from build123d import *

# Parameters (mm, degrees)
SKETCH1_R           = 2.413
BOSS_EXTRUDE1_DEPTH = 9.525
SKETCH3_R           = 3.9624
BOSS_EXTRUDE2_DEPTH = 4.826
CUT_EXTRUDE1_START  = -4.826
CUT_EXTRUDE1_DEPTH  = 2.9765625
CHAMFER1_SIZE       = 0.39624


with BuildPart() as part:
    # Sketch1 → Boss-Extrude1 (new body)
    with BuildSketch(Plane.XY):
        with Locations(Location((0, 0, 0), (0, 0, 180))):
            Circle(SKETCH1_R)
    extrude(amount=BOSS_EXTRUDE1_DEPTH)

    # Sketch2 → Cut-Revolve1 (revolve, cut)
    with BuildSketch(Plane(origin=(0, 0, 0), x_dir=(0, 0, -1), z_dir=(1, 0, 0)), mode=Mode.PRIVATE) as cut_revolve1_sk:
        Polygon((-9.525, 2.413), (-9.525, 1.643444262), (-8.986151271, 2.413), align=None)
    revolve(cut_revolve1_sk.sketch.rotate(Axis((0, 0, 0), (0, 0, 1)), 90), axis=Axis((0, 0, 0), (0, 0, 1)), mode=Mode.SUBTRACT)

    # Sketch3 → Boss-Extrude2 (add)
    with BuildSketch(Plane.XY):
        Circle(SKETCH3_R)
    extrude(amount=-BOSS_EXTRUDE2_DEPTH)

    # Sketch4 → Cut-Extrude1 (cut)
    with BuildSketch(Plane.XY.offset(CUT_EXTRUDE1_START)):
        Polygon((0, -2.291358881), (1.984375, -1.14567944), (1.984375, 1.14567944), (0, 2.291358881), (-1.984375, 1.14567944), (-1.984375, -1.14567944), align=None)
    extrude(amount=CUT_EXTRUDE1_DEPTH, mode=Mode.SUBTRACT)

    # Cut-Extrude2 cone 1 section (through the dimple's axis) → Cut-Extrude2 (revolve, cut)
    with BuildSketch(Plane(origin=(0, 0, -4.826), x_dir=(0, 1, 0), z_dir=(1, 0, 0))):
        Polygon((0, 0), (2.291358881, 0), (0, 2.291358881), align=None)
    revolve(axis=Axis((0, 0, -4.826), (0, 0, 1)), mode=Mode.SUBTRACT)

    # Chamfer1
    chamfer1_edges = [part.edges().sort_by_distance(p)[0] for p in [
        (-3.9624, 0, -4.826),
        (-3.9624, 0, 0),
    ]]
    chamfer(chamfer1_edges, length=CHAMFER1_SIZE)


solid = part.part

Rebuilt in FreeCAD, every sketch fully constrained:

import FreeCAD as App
import Part
import Sketcher

V = App.Vector
Q = App.Units.Quantity


def edges_at(feature, points):
    """Names of the edges that pass closest to the given points."""
    edges = feature.Shape.Edges
    near = lambda p: min(range(len(edges)), key=lambda i: edges[i].distToShape(Part.Vertex(*p))[0])
    return sorted({f"Edge{near(p) + 1}" for p in points})

doc = App.newDocument("Part")
body = doc.addObject("PartDesign::Body", "Body")

sketch1 = body.newObject("Sketcher::SketchObject", "Sketch")
sketch1.AttachmentSupport = (doc.getObject("XY_Plane"), [""])
sketch1.MapMode = "FlatFace"
sketch1.addGeometry(Part.Circle(V(0, 0, 0), V(0, 0, 1), 2.4), False)
sketch1.addConstraint([
    Sketcher.Constraint("Coincident", 0, 3, -1, 1),
    Sketcher.Constraint("Diameter", 0, Q("0.19 in")),
])
pad1 = body.newObject("PartDesign::Pad", "Pad")
pad1.Profile = sketch1
pad1.Length = Q("0.375 in")

sketch2 = body.newObject("Sketcher::SketchObject", "Sketch001")
sketch2.AttachmentSupport = (doc.getObject("YZ_Plane"), [""])
sketch2.MapMode = "FlatFace"
sketch2.addGeometry([
    Part.LineSegment(V(2.4, 9.5, 0), V(1.6, 9.5, 0)),
    Part.LineSegment(V(1.6, 9.5, 0), V(2.4, 9, 0)),
    Part.LineSegment(V(2.4, 9, 0), V(2.4, 9.5, 0)),
], False)
sketch2.addConstraint([
    Sketcher.Constraint("Coincident", 0, 2, 1, 1),
    Sketcher.Constraint("Coincident", 1, 2, 2, 1),
    Sketcher.Constraint("Coincident", 2, 2, 0, 1),
    Sketcher.Constraint("Horizontal", 0),
    Sketcher.Constraint("Vertical", 2),
    Sketcher.Constraint("Angle", 1, Q("-35 deg")),
    Sketcher.Constraint("DistanceY", -1, 1, 0, 2, Q("0.375 in")),
    Sketcher.Constraint("DistanceX", -1, 1, 1, 2, Q("0.095 in")),
    Sketcher.Constraint("DistanceY", 2, 1, 2, 2, Q("0.538849 mm")),
])
groove = body.newObject("PartDesign::Groove", "Groove")
groove.Profile = sketch2
groove.ReferenceAxis = (sketch2, ["V_Axis"])
groove.Angle = 360

sketch3 = body.newObject("Sketcher::SketchObject", "Sketch002")
sketch3.AttachmentSupport = (doc.getObject("XY_Plane"), [""])
sketch3.MapMode = "FlatFace"
sketch3.addGeometry(Part.Circle(V(0, 0, 0), V(0, 0, 1), 4), False)
sketch3.addConstraint([
    Sketcher.Constraint("Coincident", 0, 3, -1, 1),
    Sketcher.Constraint("Diameter", 0, Q("0.312 in")),
])
pad2 = body.newObject("PartDesign::Pad", "Pad001")
pad2.Profile = sketch3
pad2.Length = Q("0.19 in")
pad2.Reversed = True

sketch4 = body.newObject("Sketcher::SketchObject", "Sketch003")
sketch4.AttachmentSupport = (doc.getObject("XY_Plane"), [""])
sketch4.MapMode = "FlatFace"
sketch4.AttachmentOffset = App.Placement(V(0, 0, -0.19 * 25.4), App.Rotation())
sketch4.addGeometry([
    Part.LineSegment(V(0, -2.3, 0), V(2, -1.1, 0)),
    Part.LineSegment(V(2, -1.1, 0), V(2, 1.1, 0)),
    Part.LineSegment(V(2, 1.1, 0), V(0, 2.3, 0)),
    Part.LineSegment(V(0, 2.3, 0), V(-2, 1.1, 0)),
    Part.LineSegment(V(-2, 1.1, 0), V(-2, -1.1, 0)),
    Part.LineSegment(V(-2, -1.1, 0), V(0, -2.3, 0)),
], False)
sketch4.addConstraint([
    Sketcher.Constraint("Coincident", 0, 2, 1, 1),
    Sketcher.Constraint("Coincident", 1, 2, 2, 1),
    Sketcher.Constraint("Coincident", 2, 2, 3, 1),
    Sketcher.Constraint("Coincident", 3, 2, 4, 1),
    Sketcher.Constraint("Coincident", 4, 2, 5, 1),
    Sketcher.Constraint("Coincident", 5, 2, 0, 1),
    Sketcher.Constraint("Vertical", 1),
    Sketcher.Constraint("Vertical", 4),
    Sketcher.Constraint("Symmetric", 0, 2, 3, 2, -1, 1),
    Sketcher.Constraint("Symmetric", 2, 2, 5, 2, -1, 1),
    Sketcher.Constraint("PointOnObject", 2, 2, -2),
    Sketcher.Constraint("Parallel", 2, 5),
    Sketcher.Constraint("Horizontal", 1, 2, 3, 2),
    Sketcher.Constraint("Angle", 0, Q("30 deg")),
    Sketcher.Constraint("DistanceX", -1, 1, 0, 2, Q("0.078125 in")),
    Sketcher.Constraint("DistanceY", 1, 1, 1, 2, Q("2.291359 mm")),
])
pocket1 = body.newObject("PartDesign::Pocket", "Pocket")
pocket1.Profile = sketch4
pocket1.Length = 2.976562
pocket1.Reversed = True

sketch5 = body.newObject("Sketcher::SketchObject", "Sketch004")
sketch5.AttachmentSupport = (doc.getObject("YZ_Plane"), [""])
sketch5.MapMode = "FlatFace"
sketch5.addGeometry([
    Part.LineSegment(V(0, -4.8, 0), V(2.3, -4.8, 0)),
    Part.LineSegment(V(2.3, -4.8, 0), V(0, -2.5, 0)),
    Part.LineSegment(V(0, -2.5, 0), V(0, -4.8, 0)),
], False)
sketch5.addConstraint([
    Sketcher.Constraint("Coincident", 0, 2, 1, 1),
    Sketcher.Constraint("Coincident", 1, 2, 2, 1),
    Sketcher.Constraint("Coincident", 2, 2, 0, 1),
    Sketcher.Constraint("Horizontal", 0),
    Sketcher.Constraint("Vertical", 2),
    Sketcher.Constraint("PointOnObject", 1, 2, -2),
    Sketcher.Constraint("Equal", 0, 2),
    Sketcher.Constraint("DistanceY", 0, 2, -1, 1, Q("0.19 in")),
    Sketcher.Constraint("DistanceX", 0, 1, 0, 2, Q("2.291359 mm")),
])
groove2 = body.newObject("PartDesign::Groove", "Groove001")
groove2.Profile = sketch5
groove2.ReferenceAxis = (sketch5, ["V_Axis"])
groove2.Angle = 360
doc.recompute()

chamfer = body.newObject("PartDesign::Chamfer", "Chamfer")
chamfer.Base = (groove2, edges_at(groove2, [(-3.962, 0, -4.826), (-3.962, 0, 0)]))
chamfer.Size = Q("0.0156 in")

doc.recompute()
